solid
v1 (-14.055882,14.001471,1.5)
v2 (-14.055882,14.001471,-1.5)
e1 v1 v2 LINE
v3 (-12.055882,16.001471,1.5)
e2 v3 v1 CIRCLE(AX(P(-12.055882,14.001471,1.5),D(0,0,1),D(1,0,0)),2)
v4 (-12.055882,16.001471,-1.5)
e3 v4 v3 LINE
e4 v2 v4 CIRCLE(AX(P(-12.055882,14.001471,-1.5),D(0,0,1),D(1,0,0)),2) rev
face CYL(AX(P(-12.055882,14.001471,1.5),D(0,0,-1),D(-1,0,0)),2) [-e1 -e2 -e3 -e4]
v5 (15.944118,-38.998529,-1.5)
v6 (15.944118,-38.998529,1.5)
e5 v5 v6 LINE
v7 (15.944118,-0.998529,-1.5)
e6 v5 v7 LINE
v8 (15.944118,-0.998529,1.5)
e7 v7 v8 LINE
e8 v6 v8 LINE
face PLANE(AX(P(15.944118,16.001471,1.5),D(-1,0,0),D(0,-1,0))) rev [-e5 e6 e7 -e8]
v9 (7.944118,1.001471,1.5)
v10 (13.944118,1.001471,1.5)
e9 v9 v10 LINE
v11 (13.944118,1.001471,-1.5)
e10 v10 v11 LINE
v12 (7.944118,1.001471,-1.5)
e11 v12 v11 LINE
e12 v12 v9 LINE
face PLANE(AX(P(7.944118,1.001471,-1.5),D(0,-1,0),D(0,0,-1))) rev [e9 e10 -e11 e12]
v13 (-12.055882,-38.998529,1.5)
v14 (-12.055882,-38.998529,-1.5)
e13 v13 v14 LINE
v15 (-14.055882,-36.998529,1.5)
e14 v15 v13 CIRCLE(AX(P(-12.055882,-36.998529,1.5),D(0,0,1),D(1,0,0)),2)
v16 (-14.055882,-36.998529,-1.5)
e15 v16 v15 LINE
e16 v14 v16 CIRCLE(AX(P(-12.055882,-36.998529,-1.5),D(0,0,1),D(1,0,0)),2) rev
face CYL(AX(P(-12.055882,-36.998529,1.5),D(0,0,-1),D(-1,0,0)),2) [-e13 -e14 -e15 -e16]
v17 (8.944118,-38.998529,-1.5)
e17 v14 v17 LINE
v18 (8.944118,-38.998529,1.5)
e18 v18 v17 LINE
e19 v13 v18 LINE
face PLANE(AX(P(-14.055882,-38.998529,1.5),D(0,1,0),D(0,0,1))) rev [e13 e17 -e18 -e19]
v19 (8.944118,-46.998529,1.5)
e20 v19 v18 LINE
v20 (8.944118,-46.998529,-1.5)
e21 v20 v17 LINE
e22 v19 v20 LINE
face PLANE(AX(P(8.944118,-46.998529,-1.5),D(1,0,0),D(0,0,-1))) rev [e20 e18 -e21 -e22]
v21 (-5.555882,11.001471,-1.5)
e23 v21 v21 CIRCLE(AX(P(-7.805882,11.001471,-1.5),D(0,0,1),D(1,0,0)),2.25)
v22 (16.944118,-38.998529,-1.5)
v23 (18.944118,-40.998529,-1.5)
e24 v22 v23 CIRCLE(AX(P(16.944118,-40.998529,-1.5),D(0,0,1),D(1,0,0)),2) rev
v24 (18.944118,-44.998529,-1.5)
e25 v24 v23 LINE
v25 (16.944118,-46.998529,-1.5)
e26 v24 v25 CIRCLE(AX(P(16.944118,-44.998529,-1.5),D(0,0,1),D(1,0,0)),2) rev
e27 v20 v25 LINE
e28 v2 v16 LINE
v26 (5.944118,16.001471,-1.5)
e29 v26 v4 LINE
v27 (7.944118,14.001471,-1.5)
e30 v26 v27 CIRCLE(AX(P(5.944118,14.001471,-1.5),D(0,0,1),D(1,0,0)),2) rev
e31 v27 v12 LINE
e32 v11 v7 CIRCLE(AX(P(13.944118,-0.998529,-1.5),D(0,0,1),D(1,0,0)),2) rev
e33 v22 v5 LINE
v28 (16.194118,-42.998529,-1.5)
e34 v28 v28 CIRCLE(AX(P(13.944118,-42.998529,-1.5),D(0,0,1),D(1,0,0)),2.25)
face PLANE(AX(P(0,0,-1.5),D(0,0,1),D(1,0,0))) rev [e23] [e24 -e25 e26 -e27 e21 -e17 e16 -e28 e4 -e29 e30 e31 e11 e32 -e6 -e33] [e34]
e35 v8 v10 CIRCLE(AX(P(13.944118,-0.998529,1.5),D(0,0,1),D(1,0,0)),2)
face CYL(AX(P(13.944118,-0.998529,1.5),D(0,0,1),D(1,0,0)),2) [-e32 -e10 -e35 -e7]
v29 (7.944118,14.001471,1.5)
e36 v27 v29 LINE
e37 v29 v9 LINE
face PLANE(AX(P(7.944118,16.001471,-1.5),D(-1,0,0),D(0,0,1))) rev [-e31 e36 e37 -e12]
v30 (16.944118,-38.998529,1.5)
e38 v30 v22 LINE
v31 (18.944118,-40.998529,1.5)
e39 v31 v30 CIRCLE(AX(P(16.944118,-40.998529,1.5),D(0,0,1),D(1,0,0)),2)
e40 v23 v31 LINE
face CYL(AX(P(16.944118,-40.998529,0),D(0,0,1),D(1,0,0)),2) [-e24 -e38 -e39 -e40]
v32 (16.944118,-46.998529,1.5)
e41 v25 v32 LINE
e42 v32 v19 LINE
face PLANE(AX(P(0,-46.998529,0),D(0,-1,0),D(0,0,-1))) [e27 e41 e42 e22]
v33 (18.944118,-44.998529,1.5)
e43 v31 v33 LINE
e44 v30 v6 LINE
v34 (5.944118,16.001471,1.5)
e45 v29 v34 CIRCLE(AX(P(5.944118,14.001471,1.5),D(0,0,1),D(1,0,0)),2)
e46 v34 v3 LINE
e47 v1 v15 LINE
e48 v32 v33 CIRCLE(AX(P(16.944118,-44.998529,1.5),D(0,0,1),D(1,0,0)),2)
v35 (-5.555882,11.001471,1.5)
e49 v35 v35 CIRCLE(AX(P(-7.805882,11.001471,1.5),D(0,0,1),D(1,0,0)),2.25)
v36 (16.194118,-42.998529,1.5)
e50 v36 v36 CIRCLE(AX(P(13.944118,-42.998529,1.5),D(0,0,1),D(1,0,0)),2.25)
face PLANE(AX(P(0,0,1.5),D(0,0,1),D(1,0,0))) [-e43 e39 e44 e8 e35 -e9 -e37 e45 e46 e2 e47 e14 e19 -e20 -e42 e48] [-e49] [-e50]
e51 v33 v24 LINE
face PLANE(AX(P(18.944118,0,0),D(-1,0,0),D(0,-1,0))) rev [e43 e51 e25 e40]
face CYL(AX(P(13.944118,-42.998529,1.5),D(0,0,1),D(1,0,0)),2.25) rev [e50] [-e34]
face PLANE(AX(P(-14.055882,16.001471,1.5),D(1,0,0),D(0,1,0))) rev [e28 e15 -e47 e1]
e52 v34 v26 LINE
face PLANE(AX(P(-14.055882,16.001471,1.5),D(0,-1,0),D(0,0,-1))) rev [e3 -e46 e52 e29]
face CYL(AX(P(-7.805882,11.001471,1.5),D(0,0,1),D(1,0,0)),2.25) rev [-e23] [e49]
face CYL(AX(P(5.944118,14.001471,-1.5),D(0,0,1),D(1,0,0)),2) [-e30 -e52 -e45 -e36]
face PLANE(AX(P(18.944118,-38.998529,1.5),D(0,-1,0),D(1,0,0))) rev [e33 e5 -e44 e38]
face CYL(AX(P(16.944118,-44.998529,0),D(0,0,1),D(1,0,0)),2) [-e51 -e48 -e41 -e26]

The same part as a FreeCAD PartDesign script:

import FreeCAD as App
import Part
import Sketcher


def edges_at(feature, points):
    """Names of the edges that pass closest to the given points."""
    edges = feature.Shape.Edges
    near = lambda p: min(range(len(edges)), key=lambda i: edges[i].distToShape(Part.Vertex(*p))[0])
    return sorted({f"Edge{near(p) + 1}" for p in points})

doc = App.newDocument("Part")
body = doc.addObject("PartDesign::Body", "Body")

# Sketch on XY plane
sketch1 = body.newObject("Sketcher::SketchObject", "Sketch")
sketch1.AttachmentSupport = (doc.getObject("XY_Plane"), [""])
sketch1.MapMode = "FlatFace"
sketch1.addGeometry([
    Part.LineSegment(App.Vector(-14, 16, 0), App.Vector(-14, -39, 0)),
    Part.LineSegment(App.Vector(-14, -39, 0), App.Vector(16, -39, 0)),
    Part.LineSegment(App.Vector(16, -39, 0), App.Vector(16, 16, 0)),
    Part.LineSegment(App.Vector(16, 16, 0), App.Vector(-14, 16, 0)),
], False)
sketch1.addConstraint([
    Sketcher.Constraint("Coincident", 0, 2, 1, 1),
    Sketcher.Constraint("Coincident", 1, 2, 2, 1),
    Sketcher.Constraint("Coincident", 2, 2, 3, 1),
    Sketcher.Constraint("Coincident", 3, 2, 0, 1),
    Sketcher.Constraint("Vertical", 0),
    Sketcher.Constraint("Horizontal", 1),
    Sketcher.Constraint("Vertical", 2),
    Sketcher.Constraint("Horizontal", 3),
    Sketcher.Constraint("DistanceX", 1, 1, 1, 2, 30.0),
    Sketcher.Constraint("DistanceY", 0, 2, 0, 1, 55.0),
    Sketcher.Constraint("DistanceY", 0, 2, -1, 1, 38.998529),
    Sketcher.Constraint("DistanceX", 0, 2, -1, 1, 14.055882),
])
pad1 = body.newObject("PartDesign::Pad", "Pad")
pad1.Profile = sketch1
pad1.Length = 3
pad1.Midplane = True

# Sketch on XY plane
sketch2 = body.newObject("Sketcher::SketchObject", "Sketch001")
sketch2.AttachmentSupport = (doc.getObject("XY_Plane"), [""])
sketch2.MapMode = "FlatFace"
sketch2.AttachmentOffset = App.Placement(App.Vector(0, 0, 1.5), App.Rotation())
sketch2.addGeometry([
    Part.LineSegment(App.Vector(8, 16, 0), App.Vector(8, 1, 0)),
    Part.LineSegment(App.Vector(8, 1, 0), App.Vector(16, 1, 0)),
    Part.LineSegment(App.Vector(16, 1, 0), App.Vector(16, 16, 0)),
    Part.LineSegment(App.Vector(16, 16, 0), App.Vector(8, 16, 0)),
], False)
sketch2.addConstraint([
    Sketcher.Constraint("Coincident", 0, 2, 1, 1),
    Sketcher.Constraint("Coincident", 1, 2, 2, 1),
    Sketcher.Constraint("Coincident", 2, 2, 3, 1),
    Sketcher.Constraint("Coincident", 3, 2, 0, 1),
    Sketcher.Constraint("Vertical", 0),
    Sketcher.Constraint("Horizontal", 1),
    Sketcher.Constraint("Vertical", 2),
    Sketcher.Constraint("Horizontal", 3),
    Sketcher.Constraint("DistanceX", 1, 1, 1, 2, 8.0),
    Sketcher.Constraint("DistanceY", 0, 2, 0, 1, 15.0),
    Sketcher.Constraint("DistanceY", -1, 1, 0, 2, 1.001471),
    Sketcher.Constraint("DistanceX", -1, 1, 0, 2, 7.944118),
])
pocket1 = body.newObject("PartDesign::Pocket", "Pocket")
pocket1.Profile = sketch2
pocket1.Type = "ThroughAll"

# Sketch on XZ plane
sketch3 = body.newObject("Sketcher::SketchObject", "Sketch002")
sketch3.AttachmentSupport = (doc.getObject("XZ_Plane"), [""])
sketch3.MapMode = "FlatFace"
sketch3.AttachmentOffset = App.Placement(App.Vector(0, 0, 38.998529), App.Rotation())
sketch3.addGeometry([
    Part.LineSegment(App.Vector(15.9, -1.5, 0), App.Vector(15.9, 1.5, 0)),
    Part.LineSegment(App.Vector(15.9, 1.5, 0), App.Vector(8.9, 1.5, 0)),
    Part.LineSegment(App.Vector(8.9, 1.5, 0), App.Vector(8.9, -1.5, 0)),
    Part.LineSegment(App.Vector(8.9, -1.5, 0), App.Vector(15.9, -1.5, 0)),
], False)
sketch3.addConstraint([
    Sketcher.Constraint("Coincident", 0, 2, 1, 1),
    Sketcher.Constraint("Coincident", 1, 2, 2, 1),
    Sketcher.Constraint("Coincident", 2, 2, 3, 1),
    Sketcher.Constraint("Coincident", 3, 2, 0, 1),
    Sketcher.Constraint("Vertical", 0),
    Sketcher.Constraint("Horizontal", 1),
    Sketcher.Constraint("Vertical", 2),
    Sketcher.Constraint("Horizontal", 3),
    Sketcher.Constraint("DistanceX", 1, 2, 1, 1, 7.0),
    Sketcher.Constraint("DistanceY", 0, 1, 0, 2, 3.0),
    Sketcher.Constraint("DistanceY", -1, 1, 0, 2, 1.5),
    Sketcher.Constraint("DistanceX", -1, 1, 0, 2, 15.944118),
])
pad2 = body.newObject("PartDesign::Pad", "Pad001")
pad2.Profile = sketch3
pad2.Length = 8

# Sketch on YZ plane
sketch4 = body.newObject("Sketcher::SketchObject", "Sketch003")
sketch4.AttachmentSupport = (doc.getObject("YZ_Plane"), [""])
sketch4.MapMode = "FlatFace"
sketch4.AttachmentOffset = App.Placement(App.Vector(0, 0, 15.944118), App.Rotation())
sketch4.addGeometry([
    Part.LineSegment(App.Vector(-39, 1.5, 0), App.Vector(-47, 1.5, 0)),
    Part.LineSegment(App.Vector(-47, 1.5, 0), App.Vector(-47, -1.5, 0)),
    Part.LineSegment(App.Vector(-47, -1.5, 0), App.Vector(-39, -1.5, 0)),
    Part.LineSegment(App.Vector(-39, -1.5, 0), App.Vector(-39, 1.5, 0)),
], False)
sketch4.addConstraint([
    Sketcher.Constraint("Coincident", 0, 2, 1, 1),
    Sketcher.Constraint("Coincident", 1, 2, 2, 1),
    Sketcher.Constraint("Coincident", 2, 2, 3, 1),
    Sketcher.Constraint("Coincident", 3, 2, 0, 1),
    Sketcher.Constraint("Horizontal", 0),
    Sketcher.Constraint("Vertical", 1),
    Sketcher.Constraint("Horizontal", 2),
    Sketcher.Constraint("Vertical", 3),
    Sketcher.Constraint("DistanceX", 0, 2, 0, 1, 8.0),
    Sketcher.Constraint("DistanceY", 1, 2, 1, 1, 3.0),
    Sketcher.Constraint("DistanceY", -1, 1, 0, 2, 1.5),
    Sketcher.Constraint("DistanceX", 0, 2, -1, 1, 46.998529),
])
pad3 = body.newObject("PartDesign::Pad", "Pad002")
pad3.Profile = sketch4
pad3.Length = 3

# Sketch on XY plane
sketch5 = body.newObject("Sketcher::SketchObject", "Sketch004")
sketch5.AttachmentSupport = (doc.getObject("XY_Plane"), [""])
sketch5.MapMode = "FlatFace"
sketch5.AttachmentOffset = App.Placement(App.Vector(0, 0, 1.5), App.Rotation())
sketch5.addGeometry([
    Part.Circle(App.Vector(-7.8, 11, 0), App.Vector(0, 0, 1), 2.2),
    Part.Circle(App.Vector(13.9, -43, 0), App.Vector(0, 0, 1), 2.2),
], False)
sketch5.addConstraint([
    Sketcher.Constraint("Equal", 0, 1),
    Sketcher.Constraint("Diameter", 0, 4.5),
    Sketcher.Constraint("DistanceY", 1, 3, 0, 3, 54.0),
    Sketcher.Constraint("DistanceX", 0, 3, 1, 3, 21.75),
    Sketcher.Constraint("DistanceY", -1, 1, 0, 3, 11.001471),
    Sketcher.Constraint("DistanceX", 0, 3, -1, 1, 7.805882),
])
doc.recompute()
hole = body.newObject("PartDesign::Hole", "Hole")
hole.Profile = sketch5
hole.ThreadType = "None"
hole.Diameter = 4.5
hole.DepthType = "ThroughAll"
doc.recompute()

fillet = body.newObject("PartDesign::Fillet", "Fillet")
fillet.Base = (hole, edges_at(hole, [
    (7.944, 16.001, 0),
    (15.944, 1.001, 0),
    (18.944, -46.999, 0),
    (18.944, -38.999, 0),
    (-14.056, 16.001, 0),
    (-14.056, -38.999, 0),
]))
fillet.Radius = 2

doc.recompute()
